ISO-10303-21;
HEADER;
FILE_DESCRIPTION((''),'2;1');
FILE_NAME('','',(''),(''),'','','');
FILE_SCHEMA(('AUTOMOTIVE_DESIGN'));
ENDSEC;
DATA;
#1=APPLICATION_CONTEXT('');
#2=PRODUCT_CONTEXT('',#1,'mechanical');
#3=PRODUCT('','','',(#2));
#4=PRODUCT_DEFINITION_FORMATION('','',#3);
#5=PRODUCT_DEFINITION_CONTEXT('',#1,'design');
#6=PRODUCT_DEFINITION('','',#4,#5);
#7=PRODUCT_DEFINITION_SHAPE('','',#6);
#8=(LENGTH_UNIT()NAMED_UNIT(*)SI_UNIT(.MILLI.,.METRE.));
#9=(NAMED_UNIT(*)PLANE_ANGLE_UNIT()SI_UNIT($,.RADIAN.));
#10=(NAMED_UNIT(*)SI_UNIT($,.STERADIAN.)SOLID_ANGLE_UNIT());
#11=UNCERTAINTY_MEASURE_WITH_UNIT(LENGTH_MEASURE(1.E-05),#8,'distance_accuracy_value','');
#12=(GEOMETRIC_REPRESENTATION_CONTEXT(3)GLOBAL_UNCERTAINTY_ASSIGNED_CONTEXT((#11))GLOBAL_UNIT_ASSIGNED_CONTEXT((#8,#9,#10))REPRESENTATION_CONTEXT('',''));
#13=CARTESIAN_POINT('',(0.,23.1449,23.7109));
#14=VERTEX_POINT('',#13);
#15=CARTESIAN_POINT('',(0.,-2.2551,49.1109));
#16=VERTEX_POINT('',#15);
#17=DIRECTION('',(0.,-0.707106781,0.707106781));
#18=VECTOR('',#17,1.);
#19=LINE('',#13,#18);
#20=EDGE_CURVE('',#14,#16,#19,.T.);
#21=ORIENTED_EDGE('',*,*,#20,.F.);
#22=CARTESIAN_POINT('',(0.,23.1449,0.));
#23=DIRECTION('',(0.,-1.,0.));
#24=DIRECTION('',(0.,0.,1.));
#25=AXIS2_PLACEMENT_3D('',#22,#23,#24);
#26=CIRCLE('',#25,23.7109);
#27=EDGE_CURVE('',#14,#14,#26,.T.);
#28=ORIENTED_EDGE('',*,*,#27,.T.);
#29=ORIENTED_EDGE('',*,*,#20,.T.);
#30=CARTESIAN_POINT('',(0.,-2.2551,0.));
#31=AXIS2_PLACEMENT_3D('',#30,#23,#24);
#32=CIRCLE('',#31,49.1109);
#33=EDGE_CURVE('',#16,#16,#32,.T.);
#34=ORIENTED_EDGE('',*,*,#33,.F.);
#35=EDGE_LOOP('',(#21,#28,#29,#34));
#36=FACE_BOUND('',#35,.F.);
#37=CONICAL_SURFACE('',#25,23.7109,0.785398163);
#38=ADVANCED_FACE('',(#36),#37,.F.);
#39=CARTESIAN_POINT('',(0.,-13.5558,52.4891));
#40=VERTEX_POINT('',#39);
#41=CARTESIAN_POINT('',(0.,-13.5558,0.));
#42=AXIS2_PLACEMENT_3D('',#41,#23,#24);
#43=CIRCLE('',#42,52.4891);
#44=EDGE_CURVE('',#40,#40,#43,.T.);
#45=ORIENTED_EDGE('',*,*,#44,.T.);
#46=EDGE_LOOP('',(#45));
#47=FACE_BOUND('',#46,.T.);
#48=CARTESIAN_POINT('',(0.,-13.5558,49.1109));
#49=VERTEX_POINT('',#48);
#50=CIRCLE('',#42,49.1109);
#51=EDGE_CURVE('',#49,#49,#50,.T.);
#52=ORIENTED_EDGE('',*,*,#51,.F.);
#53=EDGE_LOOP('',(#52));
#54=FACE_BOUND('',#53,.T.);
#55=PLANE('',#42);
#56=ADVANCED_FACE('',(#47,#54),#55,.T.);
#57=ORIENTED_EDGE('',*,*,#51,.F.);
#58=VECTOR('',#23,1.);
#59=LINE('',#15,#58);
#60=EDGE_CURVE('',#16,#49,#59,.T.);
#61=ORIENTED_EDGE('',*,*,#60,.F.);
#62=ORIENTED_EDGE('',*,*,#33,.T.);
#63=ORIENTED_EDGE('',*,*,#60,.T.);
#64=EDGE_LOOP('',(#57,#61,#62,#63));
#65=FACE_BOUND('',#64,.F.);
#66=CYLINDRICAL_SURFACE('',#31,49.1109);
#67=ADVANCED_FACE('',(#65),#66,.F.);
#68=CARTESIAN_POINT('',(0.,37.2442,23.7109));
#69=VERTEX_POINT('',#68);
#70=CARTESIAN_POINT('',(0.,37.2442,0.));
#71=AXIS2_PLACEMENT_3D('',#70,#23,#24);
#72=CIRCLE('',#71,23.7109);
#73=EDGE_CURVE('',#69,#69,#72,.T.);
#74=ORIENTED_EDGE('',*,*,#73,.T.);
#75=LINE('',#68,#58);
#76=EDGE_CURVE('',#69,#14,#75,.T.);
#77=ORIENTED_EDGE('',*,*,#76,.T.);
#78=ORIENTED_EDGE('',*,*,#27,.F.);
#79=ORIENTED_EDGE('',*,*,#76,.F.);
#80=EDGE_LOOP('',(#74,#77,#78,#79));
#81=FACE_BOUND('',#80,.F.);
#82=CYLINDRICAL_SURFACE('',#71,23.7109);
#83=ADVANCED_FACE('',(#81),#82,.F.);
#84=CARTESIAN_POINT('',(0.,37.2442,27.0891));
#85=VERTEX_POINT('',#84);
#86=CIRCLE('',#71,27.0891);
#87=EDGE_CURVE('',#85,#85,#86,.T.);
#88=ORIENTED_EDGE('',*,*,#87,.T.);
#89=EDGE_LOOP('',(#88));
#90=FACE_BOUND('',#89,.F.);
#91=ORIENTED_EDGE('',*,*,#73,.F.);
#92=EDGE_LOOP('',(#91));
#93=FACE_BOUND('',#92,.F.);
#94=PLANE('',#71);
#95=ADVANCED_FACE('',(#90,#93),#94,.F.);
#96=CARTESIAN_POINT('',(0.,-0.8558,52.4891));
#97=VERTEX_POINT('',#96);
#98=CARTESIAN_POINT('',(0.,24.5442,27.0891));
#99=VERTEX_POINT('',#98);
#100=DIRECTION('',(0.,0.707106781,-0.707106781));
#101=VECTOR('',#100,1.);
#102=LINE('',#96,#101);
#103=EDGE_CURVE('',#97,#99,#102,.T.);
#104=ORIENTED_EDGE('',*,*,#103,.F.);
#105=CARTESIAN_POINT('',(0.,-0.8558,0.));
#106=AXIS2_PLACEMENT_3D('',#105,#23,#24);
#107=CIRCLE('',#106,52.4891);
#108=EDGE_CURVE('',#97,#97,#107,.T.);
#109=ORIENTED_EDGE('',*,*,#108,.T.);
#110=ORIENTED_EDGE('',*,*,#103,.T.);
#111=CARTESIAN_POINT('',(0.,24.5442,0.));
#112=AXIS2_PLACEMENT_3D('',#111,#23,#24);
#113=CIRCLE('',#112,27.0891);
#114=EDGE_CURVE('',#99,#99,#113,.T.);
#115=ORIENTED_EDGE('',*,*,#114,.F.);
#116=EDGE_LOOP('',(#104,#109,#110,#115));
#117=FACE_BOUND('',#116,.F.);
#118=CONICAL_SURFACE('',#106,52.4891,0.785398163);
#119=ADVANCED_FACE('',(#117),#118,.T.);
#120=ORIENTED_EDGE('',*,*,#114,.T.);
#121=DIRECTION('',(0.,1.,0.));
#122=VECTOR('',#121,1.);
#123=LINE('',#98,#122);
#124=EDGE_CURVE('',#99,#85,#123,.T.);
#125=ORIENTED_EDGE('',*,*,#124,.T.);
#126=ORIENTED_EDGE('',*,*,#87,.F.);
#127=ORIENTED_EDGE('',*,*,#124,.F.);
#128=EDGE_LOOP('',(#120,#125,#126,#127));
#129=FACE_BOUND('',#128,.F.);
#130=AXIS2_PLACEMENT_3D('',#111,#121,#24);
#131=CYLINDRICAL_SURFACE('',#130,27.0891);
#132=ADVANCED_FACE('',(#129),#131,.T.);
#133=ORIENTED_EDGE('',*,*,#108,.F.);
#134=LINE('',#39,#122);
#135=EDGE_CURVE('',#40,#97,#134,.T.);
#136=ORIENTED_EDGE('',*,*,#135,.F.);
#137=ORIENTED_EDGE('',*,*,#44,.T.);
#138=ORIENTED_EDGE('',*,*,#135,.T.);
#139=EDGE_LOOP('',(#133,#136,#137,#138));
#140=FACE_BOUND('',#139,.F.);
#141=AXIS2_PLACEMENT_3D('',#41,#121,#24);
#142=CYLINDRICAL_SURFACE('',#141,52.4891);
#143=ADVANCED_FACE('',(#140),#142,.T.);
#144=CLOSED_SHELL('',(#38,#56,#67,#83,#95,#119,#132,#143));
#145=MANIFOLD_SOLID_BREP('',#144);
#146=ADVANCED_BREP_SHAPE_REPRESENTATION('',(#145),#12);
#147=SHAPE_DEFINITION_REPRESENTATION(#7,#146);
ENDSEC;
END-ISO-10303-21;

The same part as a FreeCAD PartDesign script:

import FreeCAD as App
import Part
import Sketcher
from FreeCAD import Vector
Q = App.Units.Quantity


def add_polygon(sketch, points):
    """Adds a closed chain of lines whose ends are joined by coincident constraints."""
    first, n = sketch.GeometryCount, len(points)
    for a, b in zip(points, points[1:] + points[:1]):
        sketch.addGeometry(Part.LineSegment(App.Vector(*a, 0), App.Vector(*b, 0)), False)
    for i in range(n):
        sketch.addConstraint(Sketcher.Constraint("Coincident", first + i, 2, first + (i + 1) % n, 1))

doc = App.newDocument("Part")
params = doc.addObject("Spreadsheet::Sheet", "Params")
for row, (alias, value) in enumerate([
    ("sketch1_width", "0.5 in"),
    ("sketch1_height", "0.133 in"),
    ("revolution_angle", "360 deg"),
], start=1):
    params.set(f"A{row}", alias)
    params.set(f"B{row}", "=" + value)
    params.setAlias(f"B{row}", alias)

body = doc.addObject("PartDesign::Body", "Body")

# Sketch on YZ plane
sketch1 = doc.addObject("Sketcher::SketchObject", "Sketch")
body.addObject(sketch1)
sketch1.AttachmentSupport = (doc.YZ_Plane, [""])
sketch1.MapMode = "FlatFace"
add_polygon(sketch1, [(-0.9, 52.5), (-13.6, 52.5), (-13.6, 49.1), (-2.3, 49.1), (23.1, 23.7), (37.2, 23.7), (37.2, 27.1), (24.5, 27.1)])  # lines 0-7
sketch1.addConstraint(Sketcher.Constraint("Horizontal", 0))
sketch1.addConstraint(Sketcher.Constraint("Vertical", 1))
sketch1.addConstraint(Sketcher.Constraint("Horizontal", 2))
sketch1.addConstraint(Sketcher.Constraint("Horizontal", 4))
sketch1.addConstraint(Sketcher.Constraint("Vertical", 5))
sketch1.addConstraint(Sketcher.Constraint("Horizontal", 6))
sketch1.addConstraint(Sketcher.Constraint("Parallel", 3, 7))
sketch1.addConstraint(Sketcher.Constraint("Equal", 0, 6))
sketch1.addConstraint(Sketcher.Constraint("Equal", 1, 5))
sketch1.addConstraint(Sketcher.Constraint("DistanceX", 0, 2, 0, 1, Q("0.5 in")))
sketch1.addConstraint(Sketcher.Constraint("Angle", 7, Q("135 deg")))
sketch1.addConstraint(Sketcher.Constraint("DistanceX", 1, 2, 4, 2, Q("2 in")))
sketch1.addConstraint(Sketcher.Constraint("DistanceY", 1, 2, 1, 1, Q("0.133 in")))
sketch1.addConstraint(Sketcher.Constraint("DistanceX", 2, 1, 2, 2, Q("0.4449 in")))
sketch1.addConstraint(Sketcher.Constraint("DistanceX", 0, 2, -1, 1, Q("0.5337 in")))
sketch1.addConstraint(Sketcher.Constraint("DistanceY", -1, 1, 0, 2, Q("2.0665 in")))
sketch1.setExpression("Constraints[17]", "Params.sketch1_width")
sketch1.setExpression("Constraints[20]", "Params.sketch1_height")
revolution = doc.addObject("PartDesign::Revolution", "Revolution")
body.addObject(revolution)
revolution.Profile = sketch1
revolution.ReferenceAxis = (sketch1, ["H_Axis"])
revolution.setExpression("Angle", "Params.revolution_angle")

doc.recompute()
